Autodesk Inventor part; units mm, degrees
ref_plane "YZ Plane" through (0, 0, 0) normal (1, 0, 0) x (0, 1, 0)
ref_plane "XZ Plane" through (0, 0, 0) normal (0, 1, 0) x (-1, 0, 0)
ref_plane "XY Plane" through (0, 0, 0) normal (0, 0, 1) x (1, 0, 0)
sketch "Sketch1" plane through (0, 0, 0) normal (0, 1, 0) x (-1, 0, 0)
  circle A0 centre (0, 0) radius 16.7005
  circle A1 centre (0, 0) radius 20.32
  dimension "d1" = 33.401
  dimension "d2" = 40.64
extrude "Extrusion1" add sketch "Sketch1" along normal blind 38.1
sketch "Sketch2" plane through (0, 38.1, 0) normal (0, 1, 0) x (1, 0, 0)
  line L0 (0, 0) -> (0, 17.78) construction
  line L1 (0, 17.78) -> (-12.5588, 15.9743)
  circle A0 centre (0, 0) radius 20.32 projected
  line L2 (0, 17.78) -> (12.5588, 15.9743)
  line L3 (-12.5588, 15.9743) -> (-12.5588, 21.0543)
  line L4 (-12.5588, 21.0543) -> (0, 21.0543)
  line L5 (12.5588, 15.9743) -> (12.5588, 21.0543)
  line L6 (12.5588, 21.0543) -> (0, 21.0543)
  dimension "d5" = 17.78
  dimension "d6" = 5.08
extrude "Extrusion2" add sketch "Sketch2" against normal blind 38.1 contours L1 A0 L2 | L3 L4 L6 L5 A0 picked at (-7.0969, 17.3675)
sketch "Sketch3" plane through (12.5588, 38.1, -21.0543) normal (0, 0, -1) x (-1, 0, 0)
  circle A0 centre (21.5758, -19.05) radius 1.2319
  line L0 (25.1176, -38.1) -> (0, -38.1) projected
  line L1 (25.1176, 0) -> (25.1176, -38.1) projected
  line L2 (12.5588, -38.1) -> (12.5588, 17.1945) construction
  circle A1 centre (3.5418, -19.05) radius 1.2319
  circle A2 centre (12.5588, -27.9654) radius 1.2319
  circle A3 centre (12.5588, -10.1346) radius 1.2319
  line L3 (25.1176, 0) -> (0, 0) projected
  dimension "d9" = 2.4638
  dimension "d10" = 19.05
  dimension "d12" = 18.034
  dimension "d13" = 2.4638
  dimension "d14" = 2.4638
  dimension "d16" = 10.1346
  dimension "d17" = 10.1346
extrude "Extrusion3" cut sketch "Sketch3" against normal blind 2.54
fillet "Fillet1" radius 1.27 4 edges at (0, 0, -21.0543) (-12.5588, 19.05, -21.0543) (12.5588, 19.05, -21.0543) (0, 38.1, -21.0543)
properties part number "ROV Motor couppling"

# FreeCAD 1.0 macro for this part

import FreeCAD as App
import Part
import Sketcher
from FreeCAD import Vector
Q = App.Units.Quantity


def edges_at(feature, points):
    """Names of the edges that pass closest to the given points."""
    edges = feature.Shape.Edges
    near = lambda p: min(range(len(edges)), key=lambda i: edges[i].distToShape(Part.Vertex(*p))[0])
    return sorted({f"Edge{near(p) + 1}" for p in points})

doc = App.newDocument("Part")
body = doc.addObject("PartDesign::Body", "Body")

# Sketch on XZ plane
sketch1 = doc.addObject("Sketcher::SketchObject", "Sketch")
body.addObject(sketch1)
sketch1.AttachmentSupport = (doc.XZ_Plane, [""])
sketch1.MapMode = "FlatFace"
sketch1.addGeometry([
    Part.Circle(Vector(0, 0, 0), Vector(0, 0, 1), 20),
    Part.Circle(Vector(0, 0, 0), Vector(0, 0, 1), 17),
], False)
sketch1.addConstraint([
    Sketcher.Constraint("Coincident", 0, 3, -1, 1),
    Sketcher.Constraint("Coincident", 1, 3, -1, 1),
    Sketcher.Constraint("Diameter", 0, Q("1.6 in")),
    Sketcher.Constraint("Diameter", 1, Q("1.315 in")),
])
pad1 = doc.addObject("PartDesign::Pad", "Pad")
body.addObject(pad1)
pad1.Profile = sketch1
pad1.Length = Q("1.5 in")
pad1.Reversed = True

# Sketch on XZ plane
sketch2 = doc.addObject("Sketcher::SketchObject", "Sketch001")
body.addObject(sketch2)
sketch2.AttachmentSupport = (doc.XZ_Plane, [""])
sketch2.MapMode = "FlatFace"
sketch2.AttachmentOffset = App.Placement(Vector(0, 0, -1.5 * 25.4), App.Rotation())
sketch2.addGeometry([
    Part.LineSegment(Vector(-13, -16, 0), Vector(0, -18, 0)),  # 0
    Part.LineSegment(Vector(0, -18, 0), Vector(13, -16, 0)),  # 1
    Part.LineSegment(Vector(13, -16, 0), Vector(13, -21, 0)),  # 2
    Part.LineSegment(Vector(13, -21, 0), Vector(-13, -21, 0)),  # 3
    Part.LineSegment(Vector(-13, -21, 0), Vector(-13, -16, 0)),  # 4
], False)
sketch2.addConstraint([
    Sketcher.Constraint("Coincident", 0, 2, 1, 1),
    Sketcher.Constraint("Coincident", 1, 2, 2, 1),
    Sketcher.Constraint("Coincident", 2, 2, 3, 1),
    Sketcher.Constraint("Coincident", 3, 2, 4, 1),
    Sketcher.Constraint("Coincident", 4, 2, 0, 1),
    Sketcher.Constraint("Vertical", 2),
    Sketcher.Constraint("Horizontal", 3),
    Sketcher.Constraint("Vertical", 4),
    Sketcher.Constraint("Symmetric", 1, 2, 4, 2, -2),
    Sketcher.Constraint("PointOnObject", 0, 2, -2),
    Sketcher.Constraint("DistanceY", 2, 2, 2, 1, Q("0.2 in")),
    Sketcher.Constraint("DistanceY", 0, 2, -1, 1, Q("0.7 in")),
    Sketcher.Constraint("DistanceX", 3, 2, 3, 1, 25.1176),
    Sketcher.Constraint("DistanceY", 1, 2, -1, 1, Q("0.6289 in")),
])
pad2 = doc.addObject("PartDesign::Pad", "Pad001")
body.addObject(pad2)
pad2.Profile = sketch2
pad2.Length = Q("1.5 in")

# Sketch on XY plane
sketch3 = doc.addObject("Sketcher::SketchObject", "Sketch002")
body.addObject(sketch3)
sketch3.AttachmentSupport = (doc.XY_Plane, [""])
sketch3.MapMode = "FlatFace"
sketch3.AttachmentOffset = App.Placement(Vector(0, 0, -0.8289094 * 25.4), App.Rotation())
sketch3.addGeometry([
    Part.Circle(Vector(-9, 19.1, 0), Vector(0, 0, 1), 1.2),
    Part.Circle(Vector(9, 19.1, 0), Vector(0, 0, 1), 1.2),
    Part.Circle(Vector(0, 10.1, 0), Vector(0, 0, 1), 1.2),
    Part.Circle(Vector(0, 28, 0), Vector(0, 0, 1), 1.2),
], False)
sketch3.addConstraint([
    Sketcher.Constraint("Equal", 0, 1),
    Sketcher.Constraint("Equal", 1, 2),
    Sketcher.Constraint("Equal", 2, 3),
    Sketcher.Constraint("Symmetric", 0, 3, 1, 3, -2),
    Sketcher.Constraint("PointOnObject", 2, 3, -2),
    Sketcher.Constraint("PointOnObject", 3, 3, -2),
    Sketcher.Constraint("Diameter", 0, Q("0.097 in")),
    Sketcher.Constraint("DistanceY", -1, 1, 0, 3, Q("0.75 in")),
    Sketcher.Constraint("DistanceX", 0, 3, 1, 3, Q("0.71 in")),
    Sketcher.Constraint("DistanceY", -1, 1, 2, 3, Q("0.399 in")),
    Sketcher.Constraint("DistanceY", -1, 1, 3, 3, Q("1.101 in")),
])
pocket1 = doc.addObject("PartDesign::Pocket", "Pocket")
body.addObject(pocket1)
pocket1.Profile = sketch3
pocket1.Length = Q("0.1 in")
pocket1.Reversed = True
doc.recompute()

fillet = doc.addObject("PartDesign::Fillet", "Fillet")
body.addObject(fillet)
fillet.Base = (pocket1, edges_at(pocket1, [
    (0, 0, -21.054),
    (-12.559, 19.05, -21.054),
    (12.559, 19.05, -21.054),
    (0, 38.1, -21.054),
]))
fillet.Radius = Q("0.05 in")

doc.recompute()
